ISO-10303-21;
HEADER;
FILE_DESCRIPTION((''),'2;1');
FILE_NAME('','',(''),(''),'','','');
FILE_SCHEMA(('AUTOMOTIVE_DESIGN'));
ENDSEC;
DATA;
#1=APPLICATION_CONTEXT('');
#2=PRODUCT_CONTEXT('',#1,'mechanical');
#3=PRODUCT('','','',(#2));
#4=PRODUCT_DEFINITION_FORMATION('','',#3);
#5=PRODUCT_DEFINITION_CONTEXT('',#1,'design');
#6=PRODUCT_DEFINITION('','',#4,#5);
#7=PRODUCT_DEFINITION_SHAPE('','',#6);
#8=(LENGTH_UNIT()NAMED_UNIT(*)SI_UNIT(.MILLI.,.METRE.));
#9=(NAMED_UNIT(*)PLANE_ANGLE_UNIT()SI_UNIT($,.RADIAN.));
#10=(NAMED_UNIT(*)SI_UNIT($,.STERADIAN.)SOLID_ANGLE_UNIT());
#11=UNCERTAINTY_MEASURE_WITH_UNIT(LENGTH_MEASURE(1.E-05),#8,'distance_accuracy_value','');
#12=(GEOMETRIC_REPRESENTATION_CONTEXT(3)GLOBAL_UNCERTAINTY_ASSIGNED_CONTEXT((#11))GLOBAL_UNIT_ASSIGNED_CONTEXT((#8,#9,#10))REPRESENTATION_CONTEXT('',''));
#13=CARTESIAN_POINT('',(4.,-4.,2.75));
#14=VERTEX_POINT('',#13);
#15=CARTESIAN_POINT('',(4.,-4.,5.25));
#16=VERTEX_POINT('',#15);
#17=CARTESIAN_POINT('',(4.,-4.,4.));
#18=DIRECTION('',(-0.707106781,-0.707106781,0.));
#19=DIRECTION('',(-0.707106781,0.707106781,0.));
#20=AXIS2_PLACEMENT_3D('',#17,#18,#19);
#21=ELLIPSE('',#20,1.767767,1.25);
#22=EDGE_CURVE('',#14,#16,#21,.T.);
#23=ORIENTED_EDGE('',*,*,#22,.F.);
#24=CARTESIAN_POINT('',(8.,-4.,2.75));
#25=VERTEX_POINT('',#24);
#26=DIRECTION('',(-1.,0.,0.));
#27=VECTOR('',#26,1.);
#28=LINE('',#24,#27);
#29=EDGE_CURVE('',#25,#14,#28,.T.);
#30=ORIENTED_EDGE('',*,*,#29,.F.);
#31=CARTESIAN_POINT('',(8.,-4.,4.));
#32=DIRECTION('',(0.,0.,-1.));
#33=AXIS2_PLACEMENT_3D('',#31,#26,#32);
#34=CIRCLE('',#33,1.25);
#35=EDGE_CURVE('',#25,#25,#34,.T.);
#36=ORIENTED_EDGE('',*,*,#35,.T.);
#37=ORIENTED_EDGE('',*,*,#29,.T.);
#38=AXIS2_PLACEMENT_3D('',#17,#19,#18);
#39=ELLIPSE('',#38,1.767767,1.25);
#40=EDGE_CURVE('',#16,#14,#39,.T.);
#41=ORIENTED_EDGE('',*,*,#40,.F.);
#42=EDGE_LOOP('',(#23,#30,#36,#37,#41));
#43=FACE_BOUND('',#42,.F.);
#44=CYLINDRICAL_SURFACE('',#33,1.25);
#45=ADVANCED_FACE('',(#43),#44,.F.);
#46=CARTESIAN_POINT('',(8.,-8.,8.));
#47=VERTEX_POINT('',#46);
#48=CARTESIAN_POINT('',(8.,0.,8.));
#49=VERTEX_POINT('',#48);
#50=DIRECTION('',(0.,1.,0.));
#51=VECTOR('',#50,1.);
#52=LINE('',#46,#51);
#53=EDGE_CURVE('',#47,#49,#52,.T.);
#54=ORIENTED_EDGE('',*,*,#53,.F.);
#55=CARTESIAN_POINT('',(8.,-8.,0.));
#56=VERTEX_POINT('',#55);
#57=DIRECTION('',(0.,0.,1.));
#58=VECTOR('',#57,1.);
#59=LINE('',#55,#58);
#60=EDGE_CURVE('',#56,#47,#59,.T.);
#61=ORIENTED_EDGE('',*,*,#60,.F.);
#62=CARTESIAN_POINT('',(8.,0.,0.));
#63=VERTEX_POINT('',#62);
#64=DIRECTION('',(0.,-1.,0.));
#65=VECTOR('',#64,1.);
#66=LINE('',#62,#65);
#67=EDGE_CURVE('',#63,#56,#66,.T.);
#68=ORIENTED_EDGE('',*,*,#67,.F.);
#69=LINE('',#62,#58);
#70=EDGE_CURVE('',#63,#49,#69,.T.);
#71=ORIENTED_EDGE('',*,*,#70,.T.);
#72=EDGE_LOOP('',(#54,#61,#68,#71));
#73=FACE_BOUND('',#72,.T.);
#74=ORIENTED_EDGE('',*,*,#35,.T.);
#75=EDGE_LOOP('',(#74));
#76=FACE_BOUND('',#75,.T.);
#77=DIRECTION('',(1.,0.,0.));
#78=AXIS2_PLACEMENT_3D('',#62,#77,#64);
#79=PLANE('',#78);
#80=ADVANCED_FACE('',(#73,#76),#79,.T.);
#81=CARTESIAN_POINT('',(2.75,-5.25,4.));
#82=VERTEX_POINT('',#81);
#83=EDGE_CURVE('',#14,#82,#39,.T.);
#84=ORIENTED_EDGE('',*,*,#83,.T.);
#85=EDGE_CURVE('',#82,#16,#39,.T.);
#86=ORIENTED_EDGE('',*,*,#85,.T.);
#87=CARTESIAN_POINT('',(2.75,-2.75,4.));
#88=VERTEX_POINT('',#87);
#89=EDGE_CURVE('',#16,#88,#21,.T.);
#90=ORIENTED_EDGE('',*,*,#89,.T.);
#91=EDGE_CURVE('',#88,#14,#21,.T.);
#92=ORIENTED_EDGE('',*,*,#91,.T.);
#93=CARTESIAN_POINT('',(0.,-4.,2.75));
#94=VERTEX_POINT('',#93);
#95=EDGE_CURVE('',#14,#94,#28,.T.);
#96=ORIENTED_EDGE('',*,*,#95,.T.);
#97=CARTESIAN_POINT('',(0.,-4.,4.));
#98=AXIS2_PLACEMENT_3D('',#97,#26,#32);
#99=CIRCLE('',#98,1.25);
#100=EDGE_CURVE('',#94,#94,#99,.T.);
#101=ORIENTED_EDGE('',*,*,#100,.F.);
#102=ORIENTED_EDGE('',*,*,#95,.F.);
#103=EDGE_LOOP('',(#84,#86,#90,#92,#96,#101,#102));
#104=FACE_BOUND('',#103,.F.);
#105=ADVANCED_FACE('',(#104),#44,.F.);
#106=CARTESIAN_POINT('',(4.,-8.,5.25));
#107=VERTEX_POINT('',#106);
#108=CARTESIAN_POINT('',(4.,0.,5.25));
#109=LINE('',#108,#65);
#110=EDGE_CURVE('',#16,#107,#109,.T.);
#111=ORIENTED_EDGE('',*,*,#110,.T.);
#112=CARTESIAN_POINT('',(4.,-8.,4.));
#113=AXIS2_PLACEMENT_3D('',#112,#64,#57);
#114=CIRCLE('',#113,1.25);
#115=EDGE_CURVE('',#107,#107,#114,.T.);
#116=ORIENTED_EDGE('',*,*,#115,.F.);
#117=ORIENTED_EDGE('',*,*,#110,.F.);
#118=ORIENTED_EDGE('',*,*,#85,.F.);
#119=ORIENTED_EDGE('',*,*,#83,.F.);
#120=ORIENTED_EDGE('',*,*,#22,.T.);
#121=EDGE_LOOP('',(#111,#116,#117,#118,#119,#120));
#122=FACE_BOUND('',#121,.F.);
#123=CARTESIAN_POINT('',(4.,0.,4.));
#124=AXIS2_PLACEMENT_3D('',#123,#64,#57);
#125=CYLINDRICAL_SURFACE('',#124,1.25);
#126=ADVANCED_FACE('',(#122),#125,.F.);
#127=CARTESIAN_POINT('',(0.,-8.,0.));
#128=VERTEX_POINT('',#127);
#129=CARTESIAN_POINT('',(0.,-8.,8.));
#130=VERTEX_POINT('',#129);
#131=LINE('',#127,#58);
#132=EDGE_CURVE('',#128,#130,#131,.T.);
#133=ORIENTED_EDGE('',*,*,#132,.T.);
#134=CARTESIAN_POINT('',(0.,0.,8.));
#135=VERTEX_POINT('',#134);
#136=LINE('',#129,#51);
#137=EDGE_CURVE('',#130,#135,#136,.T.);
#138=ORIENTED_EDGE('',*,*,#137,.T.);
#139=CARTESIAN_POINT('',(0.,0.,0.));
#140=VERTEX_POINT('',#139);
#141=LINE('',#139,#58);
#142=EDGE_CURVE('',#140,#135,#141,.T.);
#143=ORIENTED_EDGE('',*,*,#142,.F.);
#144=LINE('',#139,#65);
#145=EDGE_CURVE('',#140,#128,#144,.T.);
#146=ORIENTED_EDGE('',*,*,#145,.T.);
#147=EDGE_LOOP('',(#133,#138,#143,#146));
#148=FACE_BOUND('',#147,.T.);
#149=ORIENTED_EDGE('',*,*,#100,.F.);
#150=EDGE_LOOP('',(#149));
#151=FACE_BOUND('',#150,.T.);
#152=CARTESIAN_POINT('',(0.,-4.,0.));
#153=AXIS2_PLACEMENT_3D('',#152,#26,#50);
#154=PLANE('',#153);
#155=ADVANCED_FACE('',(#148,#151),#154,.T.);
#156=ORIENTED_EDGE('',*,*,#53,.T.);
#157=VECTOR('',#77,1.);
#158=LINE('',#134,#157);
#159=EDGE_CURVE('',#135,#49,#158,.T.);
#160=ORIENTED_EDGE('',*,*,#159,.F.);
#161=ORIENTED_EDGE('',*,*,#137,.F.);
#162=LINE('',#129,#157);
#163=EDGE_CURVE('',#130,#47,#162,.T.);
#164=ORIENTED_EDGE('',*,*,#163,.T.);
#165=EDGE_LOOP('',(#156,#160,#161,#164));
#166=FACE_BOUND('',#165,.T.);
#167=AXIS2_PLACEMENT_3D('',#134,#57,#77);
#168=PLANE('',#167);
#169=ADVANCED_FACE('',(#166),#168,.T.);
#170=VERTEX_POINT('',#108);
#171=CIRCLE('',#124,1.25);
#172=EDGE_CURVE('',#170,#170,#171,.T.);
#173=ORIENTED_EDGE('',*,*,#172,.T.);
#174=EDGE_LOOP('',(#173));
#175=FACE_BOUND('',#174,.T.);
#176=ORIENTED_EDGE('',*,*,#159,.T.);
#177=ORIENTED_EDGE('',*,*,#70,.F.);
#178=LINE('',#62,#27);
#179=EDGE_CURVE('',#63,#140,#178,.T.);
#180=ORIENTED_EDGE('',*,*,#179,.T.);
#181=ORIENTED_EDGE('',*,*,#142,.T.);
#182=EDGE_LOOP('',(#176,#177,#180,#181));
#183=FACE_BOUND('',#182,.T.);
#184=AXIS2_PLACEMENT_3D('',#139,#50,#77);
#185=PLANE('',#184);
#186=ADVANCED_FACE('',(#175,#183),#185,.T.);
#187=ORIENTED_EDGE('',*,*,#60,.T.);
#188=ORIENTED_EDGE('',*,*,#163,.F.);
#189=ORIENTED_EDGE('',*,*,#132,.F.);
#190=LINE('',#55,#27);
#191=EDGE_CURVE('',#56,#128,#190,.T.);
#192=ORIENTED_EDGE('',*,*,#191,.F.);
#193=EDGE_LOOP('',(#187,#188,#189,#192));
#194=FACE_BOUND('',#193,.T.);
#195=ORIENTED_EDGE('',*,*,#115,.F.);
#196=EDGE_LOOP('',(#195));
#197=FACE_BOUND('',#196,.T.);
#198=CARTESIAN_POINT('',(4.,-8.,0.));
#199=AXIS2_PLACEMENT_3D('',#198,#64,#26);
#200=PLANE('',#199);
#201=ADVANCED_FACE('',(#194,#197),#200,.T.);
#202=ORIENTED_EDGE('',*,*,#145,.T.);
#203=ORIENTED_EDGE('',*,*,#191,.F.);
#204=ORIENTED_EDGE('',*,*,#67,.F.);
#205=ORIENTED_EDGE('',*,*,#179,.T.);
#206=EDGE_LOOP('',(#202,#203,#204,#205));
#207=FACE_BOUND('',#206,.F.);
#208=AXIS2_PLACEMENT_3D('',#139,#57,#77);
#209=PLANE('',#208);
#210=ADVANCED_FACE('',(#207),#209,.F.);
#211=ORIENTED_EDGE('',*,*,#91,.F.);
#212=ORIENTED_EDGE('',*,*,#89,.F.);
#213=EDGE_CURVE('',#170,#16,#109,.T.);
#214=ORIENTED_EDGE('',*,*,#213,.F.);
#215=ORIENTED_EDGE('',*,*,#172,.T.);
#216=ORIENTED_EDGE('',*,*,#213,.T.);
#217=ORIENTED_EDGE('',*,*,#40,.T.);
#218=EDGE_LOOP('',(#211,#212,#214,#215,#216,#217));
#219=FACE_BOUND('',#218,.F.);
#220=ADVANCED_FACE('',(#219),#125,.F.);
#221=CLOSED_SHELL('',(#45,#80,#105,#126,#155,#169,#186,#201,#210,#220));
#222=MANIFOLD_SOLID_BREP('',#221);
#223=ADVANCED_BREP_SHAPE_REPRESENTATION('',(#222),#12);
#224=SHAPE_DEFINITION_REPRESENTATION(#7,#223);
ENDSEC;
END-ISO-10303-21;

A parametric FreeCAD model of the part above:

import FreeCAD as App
import Part
import Sketcher
from FreeCAD import Vector
Q = App.Units.Quantity

doc = App.newDocument("Part")
body = doc.addObject("PartDesign::Body", "Body")

# Sketch on XY plane
sketch1 = body.newObject("Sketcher::SketchObject", "Sketch")
sketch1.AttachmentSupport = (doc.getObject("XY_Plane"), [""])
sketch1.MapMode = "FlatFace"
sketch1.addGeometry([
    Part.LineSegment(Vector(0, 0, 0), Vector(0, -8, 0)),
    Part.LineSegment(Vector(0, -8, 0), Vector(8, -8, 0)),
    Part.LineSegment(Vector(8, -8, 0), Vector(8, 0, 0)),
    Part.LineSegment(Vector(8, 0, 0), Vector(0, 0, 0)),
], False)
sketch1.addConstraint([
    Sketcher.Constraint("Coincident", 0, 2, 1, 1),
    Sketcher.Constraint("Coincident", 1, 2, 2, 1),
    Sketcher.Constraint("Coincident", 2, 2, 3, 1),
    Sketcher.Constraint("Coincident", 3, 2, 0, 1),
    Sketcher.Constraint("Vertical", 0),
    Sketcher.Constraint("Horizontal", 1),
    Sketcher.Constraint("Vertical", 2),
    Sketcher.Constraint("Horizontal", 3),
    Sketcher.Constraint("Coincident", 3, 2, -1, 1),
    Sketcher.Constraint("Equal", 3, 0),
    Sketcher.Constraint("DistanceX", 1, 1, 1, 2, Q("8 mm")),
])
pad1 = body.newObject("PartDesign::Pad", "Pad")
pad1.Profile = sketch1
pad1.Length = 8

# Sketch on YZ plane
sketch2 = body.newObject("Sketcher::SketchObject", "Sketch001")
sketch2.AttachmentSupport = (doc.getObject("YZ_Plane"), [""])
sketch2.MapMode = "FlatFace"
sketch2.AttachmentOffset = App.Placement(Vector(0, 0, 8), App.Rotation())
sketch2.addGeometry(Part.Circle(Vector(-4, 4, 0), Vector(0, 0, 1), 1.2), False)
sketch2.addConstraint([
    Sketcher.Constraint("Diameter", 0, Q("2.5 mm")),
    Sketcher.Constraint("DistanceX", 0, 3, -1, 1, Q("4 mm")),
    Sketcher.Constraint("DistanceY", -1, 1, 0, 3, Q("4 mm")),
])
doc.recompute()
hole = body.newObject("PartDesign::Hole", "Hole")
hole.Profile = sketch2
hole.ThreadType = "None"
hole.Diameter = 2.5
hole.DepthType = "ThroughAll"

# Sketch on XZ plane
sketch3 = body.newObject("Sketcher::SketchObject", "Sketch002")
sketch3.AttachmentSupport = (doc.getObject("XZ_Plane"), [""])
sketch3.MapMode = "FlatFace"
sketch3.addGeometry(Part.Circle(Vector(4, 4, 0), Vector(0, 0, 1), 1.2), False)
sketch3.addConstraint([
    Sketcher.Constraint("Diameter", 0, Q("2.5 mm")),
    Sketcher.Constraint("DistanceX", -1, 1, 0, 3, Q("4 mm")),
    Sketcher.Constraint("DistanceY", -1, 1, 0, 3, Q("4 mm")),
])
doc.recompute()
hole2 = body.newObject("PartDesign::Hole", "Hole001")
hole2.Profile = sketch3
hole2.ThreadType = "None"
hole2.Diameter = 2.5
hole2.DepthType = "ThroughAll"
hole2.Reversed = True

doc.recompute()
